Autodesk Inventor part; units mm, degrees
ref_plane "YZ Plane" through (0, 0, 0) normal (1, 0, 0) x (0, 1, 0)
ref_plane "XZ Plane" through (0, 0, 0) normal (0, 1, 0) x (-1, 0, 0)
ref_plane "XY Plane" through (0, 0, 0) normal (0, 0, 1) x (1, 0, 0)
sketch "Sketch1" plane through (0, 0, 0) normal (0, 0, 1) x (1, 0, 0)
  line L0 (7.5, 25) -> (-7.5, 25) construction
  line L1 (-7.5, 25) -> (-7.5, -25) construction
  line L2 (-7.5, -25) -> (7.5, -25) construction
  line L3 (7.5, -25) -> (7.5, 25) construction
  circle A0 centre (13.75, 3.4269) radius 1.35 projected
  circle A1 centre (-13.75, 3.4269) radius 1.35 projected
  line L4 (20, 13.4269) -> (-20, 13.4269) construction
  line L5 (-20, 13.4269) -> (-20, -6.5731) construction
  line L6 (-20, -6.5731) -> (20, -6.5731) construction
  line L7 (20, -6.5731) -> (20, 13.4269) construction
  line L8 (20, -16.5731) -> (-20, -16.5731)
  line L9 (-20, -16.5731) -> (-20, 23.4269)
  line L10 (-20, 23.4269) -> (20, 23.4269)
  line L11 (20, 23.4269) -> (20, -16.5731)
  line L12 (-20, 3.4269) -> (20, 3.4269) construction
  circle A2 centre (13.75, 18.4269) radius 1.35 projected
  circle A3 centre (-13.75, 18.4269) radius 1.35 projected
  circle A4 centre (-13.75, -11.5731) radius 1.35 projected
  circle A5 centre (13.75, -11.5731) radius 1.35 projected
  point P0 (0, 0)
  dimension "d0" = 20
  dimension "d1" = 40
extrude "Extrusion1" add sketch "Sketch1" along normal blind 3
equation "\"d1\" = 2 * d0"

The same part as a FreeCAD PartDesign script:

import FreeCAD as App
import Part
import Sketcher

V = App.Vector

doc = App.newDocument("Part")
body = doc.addObject("PartDesign::Body", "Body")

sketch1 = doc.addObject("Sketcher::SketchObject", "Sketch")
body.addObject(sketch1)
sketch1.AttachmentSupport = (doc.XY_Plane, [""])
sketch1.MapMode = "FlatFace"
sketch1.addGeometry(Part.LineSegment(V(-20, -16.6, 0), V(20, -16.6, 0)), False)
sketch1.addGeometry(Part.LineSegment(V(20, -16.6, 0), V(20, 23.4, 0)), False)
sketch1.addGeometry(Part.LineSegment(V(20, 23.4, 0), V(-20, 23.4, 0)), False)
sketch1.addGeometry(Part.LineSegment(V(-20, 23.4, 0), V(-20, -16.6, 0)), False)
sketch1.addGeometry(Part.Circle(V(-13.8, -11.6, 0), V(0, 0, 1), 1.4), False)
sketch1.addGeometry(Part.Circle(V(13.8, -11.6, 0), V(0, 0, 1), 1.4), False)
sketch1.addGeometry(Part.Circle(V(-13.8, 3.4, 0), V(0, 0, 1), 1.4), False)
sketch1.addGeometry(Part.Circle(V(-13.8, 18.4, 0), V(0, 0, 1), 1.4), False)
sketch1.addGeometry(Part.Circle(V(13.8, 3.4, 0), V(0, 0, 1), 1.4), False)
sketch1.addGeometry(Part.Circle(V(13.8, 18.4, 0), V(0, 0, 1), 1.4), False)
sketch1.addConstraint(Sketcher.Constraint("Coincident", 0, 2, 1, 1))
sketch1.addConstraint(Sketcher.Constraint("Coincident", 1, 2, 2, 1))
sketch1.addConstraint(Sketcher.Constraint("Coincident", 2, 2, 3, 1))
sketch1.addConstraint(Sketcher.Constraint("Coincident", 3, 2, 0, 1))
sketch1.addConstraint(Sketcher.Constraint("Horizontal", 0))
sketch1.addConstraint(Sketcher.Constraint("Vertical", 1))
sketch1.addConstraint(Sketcher.Constraint("Horizontal", 2))
sketch1.addConstraint(Sketcher.Constraint("Vertical", 3))
sketch1.addConstraint(Sketcher.Constraint("Equal", 4, 5))
sketch1.addConstraint(Sketcher.Constraint("Equal", 5, 6))
sketch1.addConstraint(Sketcher.Constraint("Equal", 6, 7))
sketch1.addConstraint(Sketcher.Constraint("Equal", 7, 8))
sketch1.addConstraint(Sketcher.Constraint("Equal", 8, 9))
sketch1.addConstraint(Sketcher.Constraint("Symmetric", 4, 3, 5, 3, -2))
sketch1.addConstraint(Sketcher.Constraint("Symmetric", 6, 3, 8, 3, -2))
sketch1.addConstraint(Sketcher.Constraint("Symmetric", 7, 3, 9, 3, -2))
sketch1.addConstraint(Sketcher.Constraint("Vertical", 4, 3, 6, 3))
sketch1.addConstraint(Sketcher.Constraint("Vertical", 6, 3, 7, 3))
sketch1.addConstraint(Sketcher.Constraint("Equal", 2, 1))
sketch1.addConstraint(Sketcher.Constraint("DistanceX", 0, 1, 0, 2, 40.0))
sketch1.addConstraint(Sketcher.Constraint("DistanceX", -1, 1, 0, 2, 20.0))
sketch1.addConstraint(Sketcher.Constraint("DistanceY", 0, 2, 8, 3, 20.0))
sketch1.addConstraint(Sketcher.Constraint("Diameter", 4, 2.7))
sketch1.addConstraint(Sketcher.Constraint("DistanceY", 4, 3, 6, 3, 15.0))
sketch1.addConstraint(Sketcher.Constraint("DistanceY", 6, 3, 7, 3, 15.0))
sketch1.addConstraint(Sketcher.Constraint("DistanceX", 4, 3, 5, 3, 27.5))
sketch1.addConstraint(Sketcher.Constraint("DistanceY", 4, 3, -1, 1, 11.573))
pad1 = doc.addObject("PartDesign::Pad", "Pad")
body.addObject(pad1)
pad1.Profile = sketch1
pad1.Length = 3

doc.recompute()
